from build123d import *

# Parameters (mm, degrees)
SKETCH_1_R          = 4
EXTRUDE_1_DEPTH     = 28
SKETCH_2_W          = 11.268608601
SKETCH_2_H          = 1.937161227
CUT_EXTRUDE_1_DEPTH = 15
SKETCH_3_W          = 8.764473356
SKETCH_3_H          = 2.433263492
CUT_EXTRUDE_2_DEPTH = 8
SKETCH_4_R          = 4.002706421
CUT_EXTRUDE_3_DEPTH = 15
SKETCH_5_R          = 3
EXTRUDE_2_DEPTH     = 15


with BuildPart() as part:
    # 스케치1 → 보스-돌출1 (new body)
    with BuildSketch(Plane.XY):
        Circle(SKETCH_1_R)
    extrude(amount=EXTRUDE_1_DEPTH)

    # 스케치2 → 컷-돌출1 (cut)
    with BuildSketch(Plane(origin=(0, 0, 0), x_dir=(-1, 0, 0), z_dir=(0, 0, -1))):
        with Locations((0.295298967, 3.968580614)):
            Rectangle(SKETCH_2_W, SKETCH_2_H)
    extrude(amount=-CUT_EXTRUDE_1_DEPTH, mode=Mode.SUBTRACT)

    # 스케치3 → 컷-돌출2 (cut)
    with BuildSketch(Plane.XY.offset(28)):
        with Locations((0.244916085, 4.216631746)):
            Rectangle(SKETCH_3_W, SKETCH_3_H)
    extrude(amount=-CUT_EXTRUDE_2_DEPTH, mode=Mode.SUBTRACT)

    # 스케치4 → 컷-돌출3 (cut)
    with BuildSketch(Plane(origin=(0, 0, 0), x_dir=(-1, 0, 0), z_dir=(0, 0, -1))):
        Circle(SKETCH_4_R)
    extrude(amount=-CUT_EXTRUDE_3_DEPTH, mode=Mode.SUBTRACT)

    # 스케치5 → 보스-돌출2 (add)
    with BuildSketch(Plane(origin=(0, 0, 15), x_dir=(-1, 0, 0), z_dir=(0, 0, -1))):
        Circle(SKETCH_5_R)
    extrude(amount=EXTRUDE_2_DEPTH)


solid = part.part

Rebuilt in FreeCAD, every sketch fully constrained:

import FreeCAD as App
import Part
import Sketcher

doc = App.newDocument("Part")
body = doc.addObject("PartDesign::Body", "Body")

# Sketch on XY plane
sketch1 = body.newObject("Sketcher::SketchObject", "Sketch")
sketch1.AttachmentSupport = (doc.getObject("XY_Plane"), [""])
sketch1.MapMode = "FlatFace"
sketch1.addGeometry(Part.Circle(App.Vector(0, 0, 0), App.Vector(0, 0, 1), 4), False)
sketch1.addConstraint(Sketcher.Constraint("Coincident", 0, 3, -1, 1))
sketch1.addConstraint(Sketcher.Constraint("Diameter", 0, 8.0))
pad1 = body.newObject("PartDesign::Pad", "Pad")
pad1.Profile = sketch1
pad1.Length = 28

# Sketch on XY plane
sketch2 = body.newObject("Sketcher::SketchObject", "Sketch001")
sketch2.AttachmentSupport = (doc.getObject("XY_Plane"), [""])
sketch2.MapMode = "FlatFace"
sketch2.addGeometry(Part.LineSegment(App.Vector(5.3, 4.9, 0), App.Vector(5.3, 3, 0)), False)
sketch2.addGeometry(Part.LineSegment(App.Vector(5.3, 3, 0), App.Vector(-5.9, 3, 0)), False)
sketch2.addGeometry(Part.LineSegment(App.Vector(-5.9, 3, 0), App.Vector(-5.9, 4.9, 0)), False)
sketch2.addGeometry(Part.LineSegment(App.Vector(-5.9, 4.9, 0), App.Vector(5.3, 4.9, 0)), False)
sketch2.addConstraint(Sketcher.Constraint("Coincident", 0, 2, 1, 1))
sketch2.addConstraint(Sketcher.Constraint("Coincident", 1, 2, 2, 1))
sketch2.addConstraint(Sketcher.Constraint("Coincident", 2, 2, 3, 1))
sketch2.addConstraint(Sketcher.Constraint("Coincident", 3, 2, 0, 1))
sketch2.addConstraint(Sketcher.Constraint("Vertical", 0))
sketch2.addConstraint(Sketcher.Constraint("Horizontal", 1))
sketch2.addConstraint(Sketcher.Constraint("Vertical", 2))
sketch2.addConstraint(Sketcher.Constraint("Horizontal", 3))
sketch2.addConstraint(Sketcher.Constraint("DistanceY", -1, 1, 0, 2, 3.0))
sketch2.addConstraint(Sketcher.Constraint("DistanceX", 1, 2, 1, 1, 11.268609))
sketch2.addConstraint(Sketcher.Constraint("DistanceY", 0, 2, 0, 1, 1.937161))
sketch2.addConstraint(Sketcher.Constraint("DistanceX", -1, 1, 0, 2, 5.339005))
pocket1 = body.newObject("PartDesign::Pocket", "Pocket")
pocket1.Profile = sketch2
pocket1.Length = 15
pocket1.Reversed = True

# Sketch on XY plane
sketch3 = body.newObject("Sketcher::SketchObject", "Sketch002")
sketch3.AttachmentSupport = (doc.getObject("XY_Plane"), [""])
sketch3.MapMode = "FlatFace"
sketch3.AttachmentOffset = App.Placement(App.Vector(0, 0, 28), App.Rotation())
sketch3.addGeometry(Part.LineSegment(App.Vector(-4.1, 5.4, 0), App.Vector(-4.1, 3, 0)), False)
sketch3.addGeometry(Part.LineSegment(App.Vector(-4.1, 3, 0), App.Vector(4.6, 3, 0)), False)
sketch3.addGeometry(Part.LineSegment(App.Vector(4.6, 3, 0), App.Vector(4.6, 5.4, 0)), False)
sketch3.addGeometry(Part.LineSegment(App.Vector(4.6, 5.4, 0), App.Vector(-4.1, 5.4, 0)), False)
sketch3.addConstraint(Sketcher.Constraint("Coincident", 0, 2, 1, 1))
sketch3.addConstraint(Sketcher.Constraint("Coincident", 1, 2, 2, 1))
sketch3.addConstraint(Sketcher.Constraint("Coincident", 2, 2, 3, 1))
sketch3.addConstraint(Sketcher.Constraint("Coincident", 3, 2, 0, 1))
sketch3.addConstraint(Sketcher.Constraint("Vertical", 0))
sketch3.addConstraint(Sketcher.Constraint("Horizontal", 1))
sketch3.addConstraint(Sketcher.Constraint("Vertical", 2))
sketch3.addConstraint(Sketcher.Constraint("Horizontal", 3))
sketch3.addConstraint(Sketcher.Constraint("DistanceY", -1, 1, 0, 2, 3.0))
sketch3.addConstraint(Sketcher.Constraint("DistanceX", 1, 1, 1, 2, 8.764473))
sketch3.addConstraint(Sketcher.Constraint("DistanceY", 0, 2, 0, 1, 2.433263))
sketch3.addConstraint(Sketcher.Constraint("DistanceX", 0, 2, -1, 1, 4.137321))
pocket2 = body.newObject("PartDesign::Pocket", "Pocket001")
pocket2.Profile = sketch3
pocket2.Length = 8

# Sketch on XY plane
sketch4 = body.newObject("Sketcher::SketchObject", "Sketch003")
sketch4.AttachmentSupport = (doc.getObject("XY_Plane"), [""])
sketch4.MapMode = "FlatFace"
sketch4.addGeometry(Part.Circle(App.Vector(0, 0, 0), App.Vector(0, 0, 1), 4), False)
sketch4.addConstraint(Sketcher.Constraint("Coincident", 0, 3, -1, 1))
sketch4.addConstraint(Sketcher.Constraint("Diameter", 0, 8.005413))
pocket3 = body.newObject("PartDesign::Pocket", "Pocket002")
pocket3.Profile = sketch4
pocket3.Length = 15
pocket3.Reversed = True

# Sketch on XY plane
sketch5 = body.newObject("Sketcher::SketchObject", "Sketch004")
sketch5.AttachmentSupport = (doc.getObject("XY_Plane"), [""])
sketch5.MapMode = "FlatFace"
sketch5.AttachmentOffset = App.Placement(App.Vector(0, 0, 15), App.Rotation())
sketch5.addGeometry(Part.Circle(App.Vector(0, 0, 0), App.Vector(0, 0, 1), 3), False)
sketch5.addConstraint(Sketcher.Constraint("Coincident", 0, 3, -1, 1))
sketch5.addConstraint(Sketcher.Constraint("Diameter", 0, 6.0))
pad2 = body.newObject("PartDesign::Pad", "Pad001")
pad2.Profile = sketch5
pad2.Length = 15
pad2.Reversed = True

doc.recompute()
